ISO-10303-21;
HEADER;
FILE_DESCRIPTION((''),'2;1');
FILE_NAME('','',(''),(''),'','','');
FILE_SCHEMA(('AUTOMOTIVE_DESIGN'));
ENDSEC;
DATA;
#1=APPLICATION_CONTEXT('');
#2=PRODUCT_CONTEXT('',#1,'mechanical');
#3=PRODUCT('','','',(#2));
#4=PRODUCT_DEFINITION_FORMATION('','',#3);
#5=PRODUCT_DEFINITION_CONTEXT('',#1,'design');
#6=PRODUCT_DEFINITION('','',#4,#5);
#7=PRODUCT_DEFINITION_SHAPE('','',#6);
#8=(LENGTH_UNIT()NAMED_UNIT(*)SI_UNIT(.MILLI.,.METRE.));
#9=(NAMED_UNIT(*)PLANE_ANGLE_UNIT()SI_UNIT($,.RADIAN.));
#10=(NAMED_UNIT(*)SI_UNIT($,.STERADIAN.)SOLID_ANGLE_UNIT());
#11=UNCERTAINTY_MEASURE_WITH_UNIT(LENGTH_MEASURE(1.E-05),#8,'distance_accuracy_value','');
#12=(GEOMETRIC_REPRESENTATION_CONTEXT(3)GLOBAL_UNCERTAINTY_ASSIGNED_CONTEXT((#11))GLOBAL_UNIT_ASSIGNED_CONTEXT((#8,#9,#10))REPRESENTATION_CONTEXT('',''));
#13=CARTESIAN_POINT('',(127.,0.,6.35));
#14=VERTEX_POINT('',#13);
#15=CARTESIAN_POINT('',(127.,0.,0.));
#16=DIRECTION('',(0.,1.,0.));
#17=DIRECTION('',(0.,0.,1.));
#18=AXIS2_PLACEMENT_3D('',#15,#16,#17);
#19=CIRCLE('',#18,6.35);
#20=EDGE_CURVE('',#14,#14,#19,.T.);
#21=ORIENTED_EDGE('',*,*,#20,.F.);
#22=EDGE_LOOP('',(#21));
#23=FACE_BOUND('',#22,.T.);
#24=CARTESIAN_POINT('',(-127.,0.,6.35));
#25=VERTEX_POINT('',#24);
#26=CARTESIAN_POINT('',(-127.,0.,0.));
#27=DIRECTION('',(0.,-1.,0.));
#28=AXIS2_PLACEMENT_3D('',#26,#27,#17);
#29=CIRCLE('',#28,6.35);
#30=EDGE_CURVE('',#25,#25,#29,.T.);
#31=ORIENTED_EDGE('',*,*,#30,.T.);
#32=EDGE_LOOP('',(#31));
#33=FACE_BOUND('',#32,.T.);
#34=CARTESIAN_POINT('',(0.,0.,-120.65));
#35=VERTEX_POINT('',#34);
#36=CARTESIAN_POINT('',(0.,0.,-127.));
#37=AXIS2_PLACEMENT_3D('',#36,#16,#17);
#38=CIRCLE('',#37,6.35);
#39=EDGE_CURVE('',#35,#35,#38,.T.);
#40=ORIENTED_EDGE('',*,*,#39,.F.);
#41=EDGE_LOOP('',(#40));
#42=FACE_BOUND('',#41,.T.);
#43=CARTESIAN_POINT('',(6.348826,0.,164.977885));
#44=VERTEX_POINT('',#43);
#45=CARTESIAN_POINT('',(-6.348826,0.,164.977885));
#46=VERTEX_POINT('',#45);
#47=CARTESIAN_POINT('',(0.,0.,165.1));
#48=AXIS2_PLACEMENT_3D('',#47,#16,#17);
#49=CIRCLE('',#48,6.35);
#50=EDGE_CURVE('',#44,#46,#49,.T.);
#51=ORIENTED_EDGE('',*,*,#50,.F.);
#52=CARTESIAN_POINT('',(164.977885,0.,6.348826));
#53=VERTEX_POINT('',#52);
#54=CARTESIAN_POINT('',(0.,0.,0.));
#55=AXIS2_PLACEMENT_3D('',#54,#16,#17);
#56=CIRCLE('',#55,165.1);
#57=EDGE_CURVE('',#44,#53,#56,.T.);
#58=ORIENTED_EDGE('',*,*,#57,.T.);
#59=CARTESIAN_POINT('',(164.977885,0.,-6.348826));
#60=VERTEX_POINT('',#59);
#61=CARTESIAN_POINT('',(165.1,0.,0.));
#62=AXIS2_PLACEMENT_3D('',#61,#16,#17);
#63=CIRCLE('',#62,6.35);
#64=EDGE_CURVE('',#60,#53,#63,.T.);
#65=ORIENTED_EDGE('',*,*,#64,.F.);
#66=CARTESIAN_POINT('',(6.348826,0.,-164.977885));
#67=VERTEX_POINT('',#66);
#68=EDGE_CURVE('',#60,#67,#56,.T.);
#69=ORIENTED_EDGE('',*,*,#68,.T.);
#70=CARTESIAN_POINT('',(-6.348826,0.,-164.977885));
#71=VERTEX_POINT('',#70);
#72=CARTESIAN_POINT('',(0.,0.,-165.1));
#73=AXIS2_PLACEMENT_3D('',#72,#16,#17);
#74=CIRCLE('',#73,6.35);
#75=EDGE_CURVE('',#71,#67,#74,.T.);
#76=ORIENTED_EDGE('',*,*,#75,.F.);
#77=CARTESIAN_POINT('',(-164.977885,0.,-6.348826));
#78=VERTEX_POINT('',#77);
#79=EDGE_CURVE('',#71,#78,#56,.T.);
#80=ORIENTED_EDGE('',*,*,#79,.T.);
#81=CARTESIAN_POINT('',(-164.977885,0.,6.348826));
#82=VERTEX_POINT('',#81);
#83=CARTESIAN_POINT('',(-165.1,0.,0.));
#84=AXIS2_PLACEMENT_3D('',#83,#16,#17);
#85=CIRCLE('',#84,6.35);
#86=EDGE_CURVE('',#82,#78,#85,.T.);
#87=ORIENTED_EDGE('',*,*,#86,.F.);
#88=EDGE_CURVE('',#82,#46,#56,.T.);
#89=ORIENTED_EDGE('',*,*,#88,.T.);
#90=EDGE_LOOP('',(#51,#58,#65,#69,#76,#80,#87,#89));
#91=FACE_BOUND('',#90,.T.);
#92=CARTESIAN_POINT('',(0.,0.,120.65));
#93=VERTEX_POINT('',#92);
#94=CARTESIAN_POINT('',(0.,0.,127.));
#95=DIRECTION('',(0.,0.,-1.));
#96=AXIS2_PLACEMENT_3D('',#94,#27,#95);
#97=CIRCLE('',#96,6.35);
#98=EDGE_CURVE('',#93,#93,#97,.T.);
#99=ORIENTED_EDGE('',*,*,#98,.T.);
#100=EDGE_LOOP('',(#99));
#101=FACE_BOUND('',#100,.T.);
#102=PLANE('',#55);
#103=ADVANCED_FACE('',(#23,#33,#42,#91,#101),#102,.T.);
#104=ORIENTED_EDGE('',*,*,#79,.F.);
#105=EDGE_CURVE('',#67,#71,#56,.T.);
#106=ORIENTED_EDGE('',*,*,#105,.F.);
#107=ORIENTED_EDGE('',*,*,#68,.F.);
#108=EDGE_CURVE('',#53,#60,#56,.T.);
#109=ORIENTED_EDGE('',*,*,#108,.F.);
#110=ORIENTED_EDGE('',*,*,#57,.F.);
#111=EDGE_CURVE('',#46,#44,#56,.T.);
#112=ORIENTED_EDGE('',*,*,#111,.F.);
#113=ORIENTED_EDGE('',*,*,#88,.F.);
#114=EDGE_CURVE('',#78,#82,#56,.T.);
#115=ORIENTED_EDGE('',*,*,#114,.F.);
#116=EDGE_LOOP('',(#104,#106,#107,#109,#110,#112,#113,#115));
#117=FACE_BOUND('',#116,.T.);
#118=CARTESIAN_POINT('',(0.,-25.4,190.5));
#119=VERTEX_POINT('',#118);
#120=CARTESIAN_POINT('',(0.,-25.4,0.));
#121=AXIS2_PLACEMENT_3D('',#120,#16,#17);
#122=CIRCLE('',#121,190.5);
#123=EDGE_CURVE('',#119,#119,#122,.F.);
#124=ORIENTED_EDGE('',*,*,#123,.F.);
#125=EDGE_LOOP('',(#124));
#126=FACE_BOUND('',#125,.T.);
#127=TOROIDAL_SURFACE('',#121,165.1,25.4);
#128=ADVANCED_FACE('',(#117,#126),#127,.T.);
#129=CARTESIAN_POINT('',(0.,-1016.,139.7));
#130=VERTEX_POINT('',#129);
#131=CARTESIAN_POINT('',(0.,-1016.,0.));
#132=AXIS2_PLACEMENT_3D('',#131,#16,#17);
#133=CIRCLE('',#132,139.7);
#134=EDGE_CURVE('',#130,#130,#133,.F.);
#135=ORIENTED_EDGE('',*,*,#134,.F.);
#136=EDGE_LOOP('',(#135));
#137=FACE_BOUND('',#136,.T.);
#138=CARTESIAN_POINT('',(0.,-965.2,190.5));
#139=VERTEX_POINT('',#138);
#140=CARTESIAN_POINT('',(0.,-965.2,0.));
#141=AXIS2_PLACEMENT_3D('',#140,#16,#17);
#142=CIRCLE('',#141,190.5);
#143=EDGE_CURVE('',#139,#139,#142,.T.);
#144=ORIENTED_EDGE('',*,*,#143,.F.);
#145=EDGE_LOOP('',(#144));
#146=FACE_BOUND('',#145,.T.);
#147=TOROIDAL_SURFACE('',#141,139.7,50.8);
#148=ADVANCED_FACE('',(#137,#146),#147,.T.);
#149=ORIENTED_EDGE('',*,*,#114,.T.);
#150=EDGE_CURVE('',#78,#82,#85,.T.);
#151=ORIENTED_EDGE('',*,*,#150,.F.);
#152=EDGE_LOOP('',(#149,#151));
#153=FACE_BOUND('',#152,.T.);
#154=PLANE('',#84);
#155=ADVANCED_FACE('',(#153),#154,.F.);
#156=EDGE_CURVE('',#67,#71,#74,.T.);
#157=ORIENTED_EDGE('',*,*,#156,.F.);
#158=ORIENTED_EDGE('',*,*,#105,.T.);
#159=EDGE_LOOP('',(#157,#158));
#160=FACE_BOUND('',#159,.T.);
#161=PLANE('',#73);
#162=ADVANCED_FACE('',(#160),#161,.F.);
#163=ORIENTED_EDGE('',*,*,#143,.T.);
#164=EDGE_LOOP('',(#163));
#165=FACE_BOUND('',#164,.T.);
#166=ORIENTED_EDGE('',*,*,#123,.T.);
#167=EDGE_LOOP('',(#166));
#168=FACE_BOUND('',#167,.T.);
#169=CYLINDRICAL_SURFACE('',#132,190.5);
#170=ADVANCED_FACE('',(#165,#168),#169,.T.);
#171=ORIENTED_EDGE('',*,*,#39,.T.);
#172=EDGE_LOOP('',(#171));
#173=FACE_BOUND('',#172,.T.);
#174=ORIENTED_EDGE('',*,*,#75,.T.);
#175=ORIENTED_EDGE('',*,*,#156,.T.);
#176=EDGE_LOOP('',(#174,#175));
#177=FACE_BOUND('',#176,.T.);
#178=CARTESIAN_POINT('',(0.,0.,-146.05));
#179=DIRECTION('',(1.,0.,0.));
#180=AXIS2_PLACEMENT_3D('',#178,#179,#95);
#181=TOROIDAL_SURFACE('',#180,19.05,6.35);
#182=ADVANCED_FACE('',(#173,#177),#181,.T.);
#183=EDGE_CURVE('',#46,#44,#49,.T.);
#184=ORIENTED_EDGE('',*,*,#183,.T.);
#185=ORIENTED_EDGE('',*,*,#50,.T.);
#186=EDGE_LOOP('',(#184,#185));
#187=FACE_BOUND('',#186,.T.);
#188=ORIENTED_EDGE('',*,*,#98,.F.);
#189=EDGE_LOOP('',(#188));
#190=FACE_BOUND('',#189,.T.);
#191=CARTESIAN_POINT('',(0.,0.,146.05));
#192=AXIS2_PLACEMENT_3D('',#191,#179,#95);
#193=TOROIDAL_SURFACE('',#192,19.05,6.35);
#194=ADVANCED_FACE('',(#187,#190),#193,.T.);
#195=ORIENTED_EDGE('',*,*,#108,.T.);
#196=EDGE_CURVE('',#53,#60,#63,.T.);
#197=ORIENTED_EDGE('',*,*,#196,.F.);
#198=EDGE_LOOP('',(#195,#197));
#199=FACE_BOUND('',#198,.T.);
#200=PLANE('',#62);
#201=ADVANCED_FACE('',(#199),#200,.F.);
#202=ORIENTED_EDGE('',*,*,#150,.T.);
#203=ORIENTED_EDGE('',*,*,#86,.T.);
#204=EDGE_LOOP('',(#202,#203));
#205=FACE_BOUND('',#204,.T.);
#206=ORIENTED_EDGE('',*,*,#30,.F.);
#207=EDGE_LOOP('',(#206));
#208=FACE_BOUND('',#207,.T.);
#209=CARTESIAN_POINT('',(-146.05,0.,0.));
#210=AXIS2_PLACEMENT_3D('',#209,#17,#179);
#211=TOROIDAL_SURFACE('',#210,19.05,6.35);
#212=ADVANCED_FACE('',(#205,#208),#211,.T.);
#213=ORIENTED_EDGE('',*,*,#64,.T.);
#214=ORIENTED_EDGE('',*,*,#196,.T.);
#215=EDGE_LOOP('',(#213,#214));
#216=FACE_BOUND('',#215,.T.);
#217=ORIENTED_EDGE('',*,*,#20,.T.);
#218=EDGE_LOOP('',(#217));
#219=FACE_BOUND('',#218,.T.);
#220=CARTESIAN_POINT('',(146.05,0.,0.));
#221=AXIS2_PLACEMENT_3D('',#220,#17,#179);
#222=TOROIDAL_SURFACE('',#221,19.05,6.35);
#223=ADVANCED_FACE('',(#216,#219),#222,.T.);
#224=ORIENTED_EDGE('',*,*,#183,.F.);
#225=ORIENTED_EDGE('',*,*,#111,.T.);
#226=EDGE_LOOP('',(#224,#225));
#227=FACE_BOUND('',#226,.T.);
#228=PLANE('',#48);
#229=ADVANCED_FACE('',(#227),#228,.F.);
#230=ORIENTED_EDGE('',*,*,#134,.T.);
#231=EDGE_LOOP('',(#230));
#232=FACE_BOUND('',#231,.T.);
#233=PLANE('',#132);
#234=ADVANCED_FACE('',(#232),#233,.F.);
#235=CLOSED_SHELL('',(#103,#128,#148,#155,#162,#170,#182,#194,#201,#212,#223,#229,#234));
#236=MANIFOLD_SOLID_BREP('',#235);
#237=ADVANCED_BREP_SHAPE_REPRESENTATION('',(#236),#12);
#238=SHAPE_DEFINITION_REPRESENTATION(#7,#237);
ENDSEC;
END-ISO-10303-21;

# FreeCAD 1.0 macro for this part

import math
import FreeCAD as App
import Part
import Sketcher
from FreeCAD import Vector
Q = App.Units.Quantity


def edges_at(feature, points):
    """Names of the edges that pass closest to the given points."""
    edges = feature.Shape.Edges
    near = lambda p: min(range(len(edges)), key=lambda i: edges[i].distToShape(Part.Vertex(*p))[0])
    return sorted({f"Edge{near(p) + 1}" for p in points})

doc = App.newDocument("Part")
body = doc.addObject("PartDesign::Body", "Body")

# Sketch on XZ plane
sketch1 = doc.addObject("Sketcher::SketchObject", "Sketch")
body.addObject(sketch1)
sketch1.AttachmentSupport = (doc.XZ_Plane, [""])
sketch1.MapMode = "FlatFace"
sketch1.addGeometry(Part.Circle(Vector(0, 0, 0), Vector(0, 0, 1), 190), False)
sketch1.addConstraint(Sketcher.Constraint("Coincident", 0, 3, -1, 1))
sketch1.addConstraint(Sketcher.Constraint("Diameter", 0, Q("15 in")))
pad1 = doc.addObject("PartDesign::Pad", "Pad")
body.addObject(pad1)
pad1.Profile = sketch1
pad1.Length = Q("40 in")
doc.recompute()

fillet = doc.addObject("PartDesign::Fillet", "Fillet")
body.addObject(fillet)
fillet.Base = (pad1, edges_at(pad1, [(0, -1016, -190.5)]))
fillet.Radius = Q("2 in")
doc.recompute()

fillet2 = doc.addObject("PartDesign::Fillet", "Fillet001")
body.addObject(fillet2)
fillet2.Base = (fillet, edges_at(fillet, [(0, 0, -190.5)]))
fillet2.Radius = Q("1 in")

# Sketch on XZ plane
sketch2 = doc.addObject("Sketcher::SketchObject", "Sketch001")
body.addObject(sketch2)
sketch2.AttachmentSupport = (doc.XZ_Plane, [""])
sketch2.MapMode = "FlatFace"
sketch2.addGeometry(Part.Circle(Vector(-165, 0, 0), Vector(0, 0, 1), 6), False)
sketch2.addConstraint(Sketcher.Constraint("PointOnObject", 0, 3, -1))
sketch2.addConstraint(Sketcher.Constraint("Diameter", 0, Q("0.5 in")))
sketch2.addConstraint(Sketcher.Constraint("DistanceX", 0, 3, -1, 1, Q("6.5 in")))

# Sketch on XY plane
sketch3 = doc.addObject("Sketcher::SketchObject", "Sketch002")
body.addObject(sketch3)
sketch3.AttachmentSupport = (doc.XY_Plane, [""])
sketch3.MapMode = "FlatFace"
sketch3.addGeometry(Part.ArcOfCircle(Part.Circle(Vector(-146, 0, 0), Vector(0, 0, 1), 19), math.radians(0), math.radians(180)), False)
sketch3.addConstraint(Sketcher.Constraint("PointOnObject", 0, 3, -1))
sketch3.addConstraint(Sketcher.Constraint("PointOnObject", 0, 1, -1))
sketch3.addConstraint(Sketcher.Constraint("PointOnObject", 0, 2, -1))
sketch3.addConstraint(Sketcher.Constraint("Radius", 0, Q("0.75 in")))
sketch3.addConstraint(Sketcher.Constraint("DistanceX", 0, 1, -1, 1, Q("5 in")))
doc.recompute()

additivepipe = doc.addObject("PartDesign::AdditivePipe", "AdditivePipe")
body.addObject(additivepipe)
additivepipe.Profile = sketch2
additivepipe.Spine = (sketch3, ["Edge1"])

# Sketch on XZ plane
sketch4 = doc.addObject("Sketcher::SketchObject", "Sketch003")
body.addObject(sketch4)
sketch4.AttachmentSupport = (doc.XZ_Plane, [""])
sketch4.MapMode = "FlatFace"
sketch4.addGeometry(Part.Circle(Vector(165, 0, 0), Vector(0, 0, 1), 6), False)
sketch4.addConstraint(Sketcher.Constraint("PointOnObject", 0, 3, -1))
sketch4.addConstraint(Sketcher.Constraint("Diameter", 0, Q("0.5 in")))
sketch4.addConstraint(Sketcher.Constraint("DistanceX", -1, 1, 0, 3, Q("6.5 in")))

# Sketch on XY plane
sketch5 = doc.addObject("Sketcher::SketchObject", "Sketch004")
body.addObject(sketch5)
sketch5.AttachmentSupport = (doc.XY_Plane, [""])
sketch5.MapMode = "FlatFace"
sketch5.addGeometry(Part.ArcOfCircle(Part.Circle(Vector(146, 0, 0), Vector(0, 0, 1), 19), math.radians(0), math.radians(180)), False)
sketch5.addConstraint(Sketcher.Constraint("PointOnObject", 0, 3, -1))
sketch5.addConstraint(Sketcher.Constraint("PointOnObject", 0, 1, -1))
sketch5.addConstraint(Sketcher.Constraint("PointOnObject", 0, 2, -1))
sketch5.addConstraint(Sketcher.Constraint("Radius", 0, Q("0.75 in")))
sketch5.addConstraint(Sketcher.Constraint("DistanceX", -1, 1, 0, 2, Q("5 in")))
doc.recompute()

additivepipe2 = doc.addObject("PartDesign::AdditivePipe", "AdditivePipe001")
body.addObject(additivepipe2)
additivepipe2.Profile = sketch4
additivepipe2.Spine = (sketch5, ["Edge1"])

# Sketch on XZ plane
sketch6 = doc.addObject("Sketcher::SketchObject", "Sketch005")
body.addObject(sketch6)
sketch6.AttachmentSupport = (doc.XZ_Plane, [""])
sketch6.MapMode = "FlatFace"
sketch6.addGeometry(Part.Circle(Vector(0, 165, 0), Vector(0, 0, 1), 6), False)
sketch6.addConstraint(Sketcher.Constraint("PointOnObject", 0, 3, -2))
sketch6.addConstraint(Sketcher.Constraint("Diameter", 0, Q("0.5 in")))
sketch6.addConstraint(Sketcher.Constraint("DistanceY", -1, 1, 0, 3, Q("6.5 in")))

# Sketch on YZ plane
sketch7 = doc.addObject("Sketcher::SketchObject", "Sketch006")
body.addObject(sketch7)
sketch7.AttachmentSupport = (doc.YZ_Plane, [""])
sketch7.MapMode = "FlatFace"
sketch7.addGeometry(Part.ArcOfCircle(Part.Circle(Vector(0, 146, 0), Vector(0, 0, 1), 19), math.radians(-90), math.radians(90)), False)
sketch7.addConstraint(Sketcher.Constraint("PointOnObject", 0, 3, -2))
sketch7.addConstraint(Sketcher.Constraint("PointOnObject", 0, 1, -2))
sketch7.addConstraint(Sketcher.Constraint("PointOnObject", 0, 2, -2))
sketch7.addConstraint(Sketcher.Constraint("Radius", 0, Q("0.75 in")))
sketch7.addConstraint(Sketcher.Constraint("DistanceY", -1, 1, 0, 1, Q("5 in")))
doc.recompute()

additivepipe3 = doc.addObject("PartDesign::AdditivePipe", "AdditivePipe002")
body.addObject(additivepipe3)
additivepipe3.Profile = sketch6
additivepipe3.Spine = (sketch7, ["Edge1"])

# Sketch on XZ plane
sketch8 = doc.addObject("Sketcher::SketchObject", "Sketch007")
body.addObject(sketch8)
sketch8.AttachmentSupport = (doc.XZ_Plane, [""])
sketch8.MapMode = "FlatFace"
sketch8.addGeometry(Part.Circle(Vector(0, -165, 0), Vector(0, 0, 1), 6), False)
sketch8.addConstraint(Sketcher.Constraint("PointOnObject", 0, 3, -2))
sketch8.addConstraint(Sketcher.Constraint("Diameter", 0, Q("0.5 in")))
sketch8.addConstraint(Sketcher.Constraint("DistanceY", 0, 3, -1, 1, Q("6.5 in")))

# Sketch on YZ plane
sketch9 = doc.addObject("Sketcher::SketchObject", "Sketch008")
body.addObject(sketch9)
sketch9.AttachmentSupport = (doc.YZ_Plane, [""])
sketch9.MapMode = "FlatFace"
sketch9.addGeometry(Part.ArcOfCircle(Part.Circle(Vector(0, -146, 0), Vector(0, 0, 1), 19), math.radians(-90), math.radians(90)), False)
sketch9.addConstraint(Sketcher.Constraint("PointOnObject", 0, 3, -2))
sketch9.addConstraint(Sketcher.Constraint("PointOnObject", 0, 1, -2))
sketch9.addConstraint(Sketcher.Constraint("PointOnObject", 0, 2, -2))
sketch9.addConstraint(Sketcher.Constraint("Radius", 0, Q("0.75 in")))
sketch9.addConstraint(Sketcher.Constraint("DistanceY", 0, 2, -1, 1, Q("5 in")))
doc.recompute()

additivepipe4 = doc.addObject("PartDesign::AdditivePipe", "AdditivePipe003")
body.addObject(additivepipe4)
additivepipe4.Profile = sketch8
additivepipe4.Spine = (sketch9, ["Edge1"])

doc.recompute()
